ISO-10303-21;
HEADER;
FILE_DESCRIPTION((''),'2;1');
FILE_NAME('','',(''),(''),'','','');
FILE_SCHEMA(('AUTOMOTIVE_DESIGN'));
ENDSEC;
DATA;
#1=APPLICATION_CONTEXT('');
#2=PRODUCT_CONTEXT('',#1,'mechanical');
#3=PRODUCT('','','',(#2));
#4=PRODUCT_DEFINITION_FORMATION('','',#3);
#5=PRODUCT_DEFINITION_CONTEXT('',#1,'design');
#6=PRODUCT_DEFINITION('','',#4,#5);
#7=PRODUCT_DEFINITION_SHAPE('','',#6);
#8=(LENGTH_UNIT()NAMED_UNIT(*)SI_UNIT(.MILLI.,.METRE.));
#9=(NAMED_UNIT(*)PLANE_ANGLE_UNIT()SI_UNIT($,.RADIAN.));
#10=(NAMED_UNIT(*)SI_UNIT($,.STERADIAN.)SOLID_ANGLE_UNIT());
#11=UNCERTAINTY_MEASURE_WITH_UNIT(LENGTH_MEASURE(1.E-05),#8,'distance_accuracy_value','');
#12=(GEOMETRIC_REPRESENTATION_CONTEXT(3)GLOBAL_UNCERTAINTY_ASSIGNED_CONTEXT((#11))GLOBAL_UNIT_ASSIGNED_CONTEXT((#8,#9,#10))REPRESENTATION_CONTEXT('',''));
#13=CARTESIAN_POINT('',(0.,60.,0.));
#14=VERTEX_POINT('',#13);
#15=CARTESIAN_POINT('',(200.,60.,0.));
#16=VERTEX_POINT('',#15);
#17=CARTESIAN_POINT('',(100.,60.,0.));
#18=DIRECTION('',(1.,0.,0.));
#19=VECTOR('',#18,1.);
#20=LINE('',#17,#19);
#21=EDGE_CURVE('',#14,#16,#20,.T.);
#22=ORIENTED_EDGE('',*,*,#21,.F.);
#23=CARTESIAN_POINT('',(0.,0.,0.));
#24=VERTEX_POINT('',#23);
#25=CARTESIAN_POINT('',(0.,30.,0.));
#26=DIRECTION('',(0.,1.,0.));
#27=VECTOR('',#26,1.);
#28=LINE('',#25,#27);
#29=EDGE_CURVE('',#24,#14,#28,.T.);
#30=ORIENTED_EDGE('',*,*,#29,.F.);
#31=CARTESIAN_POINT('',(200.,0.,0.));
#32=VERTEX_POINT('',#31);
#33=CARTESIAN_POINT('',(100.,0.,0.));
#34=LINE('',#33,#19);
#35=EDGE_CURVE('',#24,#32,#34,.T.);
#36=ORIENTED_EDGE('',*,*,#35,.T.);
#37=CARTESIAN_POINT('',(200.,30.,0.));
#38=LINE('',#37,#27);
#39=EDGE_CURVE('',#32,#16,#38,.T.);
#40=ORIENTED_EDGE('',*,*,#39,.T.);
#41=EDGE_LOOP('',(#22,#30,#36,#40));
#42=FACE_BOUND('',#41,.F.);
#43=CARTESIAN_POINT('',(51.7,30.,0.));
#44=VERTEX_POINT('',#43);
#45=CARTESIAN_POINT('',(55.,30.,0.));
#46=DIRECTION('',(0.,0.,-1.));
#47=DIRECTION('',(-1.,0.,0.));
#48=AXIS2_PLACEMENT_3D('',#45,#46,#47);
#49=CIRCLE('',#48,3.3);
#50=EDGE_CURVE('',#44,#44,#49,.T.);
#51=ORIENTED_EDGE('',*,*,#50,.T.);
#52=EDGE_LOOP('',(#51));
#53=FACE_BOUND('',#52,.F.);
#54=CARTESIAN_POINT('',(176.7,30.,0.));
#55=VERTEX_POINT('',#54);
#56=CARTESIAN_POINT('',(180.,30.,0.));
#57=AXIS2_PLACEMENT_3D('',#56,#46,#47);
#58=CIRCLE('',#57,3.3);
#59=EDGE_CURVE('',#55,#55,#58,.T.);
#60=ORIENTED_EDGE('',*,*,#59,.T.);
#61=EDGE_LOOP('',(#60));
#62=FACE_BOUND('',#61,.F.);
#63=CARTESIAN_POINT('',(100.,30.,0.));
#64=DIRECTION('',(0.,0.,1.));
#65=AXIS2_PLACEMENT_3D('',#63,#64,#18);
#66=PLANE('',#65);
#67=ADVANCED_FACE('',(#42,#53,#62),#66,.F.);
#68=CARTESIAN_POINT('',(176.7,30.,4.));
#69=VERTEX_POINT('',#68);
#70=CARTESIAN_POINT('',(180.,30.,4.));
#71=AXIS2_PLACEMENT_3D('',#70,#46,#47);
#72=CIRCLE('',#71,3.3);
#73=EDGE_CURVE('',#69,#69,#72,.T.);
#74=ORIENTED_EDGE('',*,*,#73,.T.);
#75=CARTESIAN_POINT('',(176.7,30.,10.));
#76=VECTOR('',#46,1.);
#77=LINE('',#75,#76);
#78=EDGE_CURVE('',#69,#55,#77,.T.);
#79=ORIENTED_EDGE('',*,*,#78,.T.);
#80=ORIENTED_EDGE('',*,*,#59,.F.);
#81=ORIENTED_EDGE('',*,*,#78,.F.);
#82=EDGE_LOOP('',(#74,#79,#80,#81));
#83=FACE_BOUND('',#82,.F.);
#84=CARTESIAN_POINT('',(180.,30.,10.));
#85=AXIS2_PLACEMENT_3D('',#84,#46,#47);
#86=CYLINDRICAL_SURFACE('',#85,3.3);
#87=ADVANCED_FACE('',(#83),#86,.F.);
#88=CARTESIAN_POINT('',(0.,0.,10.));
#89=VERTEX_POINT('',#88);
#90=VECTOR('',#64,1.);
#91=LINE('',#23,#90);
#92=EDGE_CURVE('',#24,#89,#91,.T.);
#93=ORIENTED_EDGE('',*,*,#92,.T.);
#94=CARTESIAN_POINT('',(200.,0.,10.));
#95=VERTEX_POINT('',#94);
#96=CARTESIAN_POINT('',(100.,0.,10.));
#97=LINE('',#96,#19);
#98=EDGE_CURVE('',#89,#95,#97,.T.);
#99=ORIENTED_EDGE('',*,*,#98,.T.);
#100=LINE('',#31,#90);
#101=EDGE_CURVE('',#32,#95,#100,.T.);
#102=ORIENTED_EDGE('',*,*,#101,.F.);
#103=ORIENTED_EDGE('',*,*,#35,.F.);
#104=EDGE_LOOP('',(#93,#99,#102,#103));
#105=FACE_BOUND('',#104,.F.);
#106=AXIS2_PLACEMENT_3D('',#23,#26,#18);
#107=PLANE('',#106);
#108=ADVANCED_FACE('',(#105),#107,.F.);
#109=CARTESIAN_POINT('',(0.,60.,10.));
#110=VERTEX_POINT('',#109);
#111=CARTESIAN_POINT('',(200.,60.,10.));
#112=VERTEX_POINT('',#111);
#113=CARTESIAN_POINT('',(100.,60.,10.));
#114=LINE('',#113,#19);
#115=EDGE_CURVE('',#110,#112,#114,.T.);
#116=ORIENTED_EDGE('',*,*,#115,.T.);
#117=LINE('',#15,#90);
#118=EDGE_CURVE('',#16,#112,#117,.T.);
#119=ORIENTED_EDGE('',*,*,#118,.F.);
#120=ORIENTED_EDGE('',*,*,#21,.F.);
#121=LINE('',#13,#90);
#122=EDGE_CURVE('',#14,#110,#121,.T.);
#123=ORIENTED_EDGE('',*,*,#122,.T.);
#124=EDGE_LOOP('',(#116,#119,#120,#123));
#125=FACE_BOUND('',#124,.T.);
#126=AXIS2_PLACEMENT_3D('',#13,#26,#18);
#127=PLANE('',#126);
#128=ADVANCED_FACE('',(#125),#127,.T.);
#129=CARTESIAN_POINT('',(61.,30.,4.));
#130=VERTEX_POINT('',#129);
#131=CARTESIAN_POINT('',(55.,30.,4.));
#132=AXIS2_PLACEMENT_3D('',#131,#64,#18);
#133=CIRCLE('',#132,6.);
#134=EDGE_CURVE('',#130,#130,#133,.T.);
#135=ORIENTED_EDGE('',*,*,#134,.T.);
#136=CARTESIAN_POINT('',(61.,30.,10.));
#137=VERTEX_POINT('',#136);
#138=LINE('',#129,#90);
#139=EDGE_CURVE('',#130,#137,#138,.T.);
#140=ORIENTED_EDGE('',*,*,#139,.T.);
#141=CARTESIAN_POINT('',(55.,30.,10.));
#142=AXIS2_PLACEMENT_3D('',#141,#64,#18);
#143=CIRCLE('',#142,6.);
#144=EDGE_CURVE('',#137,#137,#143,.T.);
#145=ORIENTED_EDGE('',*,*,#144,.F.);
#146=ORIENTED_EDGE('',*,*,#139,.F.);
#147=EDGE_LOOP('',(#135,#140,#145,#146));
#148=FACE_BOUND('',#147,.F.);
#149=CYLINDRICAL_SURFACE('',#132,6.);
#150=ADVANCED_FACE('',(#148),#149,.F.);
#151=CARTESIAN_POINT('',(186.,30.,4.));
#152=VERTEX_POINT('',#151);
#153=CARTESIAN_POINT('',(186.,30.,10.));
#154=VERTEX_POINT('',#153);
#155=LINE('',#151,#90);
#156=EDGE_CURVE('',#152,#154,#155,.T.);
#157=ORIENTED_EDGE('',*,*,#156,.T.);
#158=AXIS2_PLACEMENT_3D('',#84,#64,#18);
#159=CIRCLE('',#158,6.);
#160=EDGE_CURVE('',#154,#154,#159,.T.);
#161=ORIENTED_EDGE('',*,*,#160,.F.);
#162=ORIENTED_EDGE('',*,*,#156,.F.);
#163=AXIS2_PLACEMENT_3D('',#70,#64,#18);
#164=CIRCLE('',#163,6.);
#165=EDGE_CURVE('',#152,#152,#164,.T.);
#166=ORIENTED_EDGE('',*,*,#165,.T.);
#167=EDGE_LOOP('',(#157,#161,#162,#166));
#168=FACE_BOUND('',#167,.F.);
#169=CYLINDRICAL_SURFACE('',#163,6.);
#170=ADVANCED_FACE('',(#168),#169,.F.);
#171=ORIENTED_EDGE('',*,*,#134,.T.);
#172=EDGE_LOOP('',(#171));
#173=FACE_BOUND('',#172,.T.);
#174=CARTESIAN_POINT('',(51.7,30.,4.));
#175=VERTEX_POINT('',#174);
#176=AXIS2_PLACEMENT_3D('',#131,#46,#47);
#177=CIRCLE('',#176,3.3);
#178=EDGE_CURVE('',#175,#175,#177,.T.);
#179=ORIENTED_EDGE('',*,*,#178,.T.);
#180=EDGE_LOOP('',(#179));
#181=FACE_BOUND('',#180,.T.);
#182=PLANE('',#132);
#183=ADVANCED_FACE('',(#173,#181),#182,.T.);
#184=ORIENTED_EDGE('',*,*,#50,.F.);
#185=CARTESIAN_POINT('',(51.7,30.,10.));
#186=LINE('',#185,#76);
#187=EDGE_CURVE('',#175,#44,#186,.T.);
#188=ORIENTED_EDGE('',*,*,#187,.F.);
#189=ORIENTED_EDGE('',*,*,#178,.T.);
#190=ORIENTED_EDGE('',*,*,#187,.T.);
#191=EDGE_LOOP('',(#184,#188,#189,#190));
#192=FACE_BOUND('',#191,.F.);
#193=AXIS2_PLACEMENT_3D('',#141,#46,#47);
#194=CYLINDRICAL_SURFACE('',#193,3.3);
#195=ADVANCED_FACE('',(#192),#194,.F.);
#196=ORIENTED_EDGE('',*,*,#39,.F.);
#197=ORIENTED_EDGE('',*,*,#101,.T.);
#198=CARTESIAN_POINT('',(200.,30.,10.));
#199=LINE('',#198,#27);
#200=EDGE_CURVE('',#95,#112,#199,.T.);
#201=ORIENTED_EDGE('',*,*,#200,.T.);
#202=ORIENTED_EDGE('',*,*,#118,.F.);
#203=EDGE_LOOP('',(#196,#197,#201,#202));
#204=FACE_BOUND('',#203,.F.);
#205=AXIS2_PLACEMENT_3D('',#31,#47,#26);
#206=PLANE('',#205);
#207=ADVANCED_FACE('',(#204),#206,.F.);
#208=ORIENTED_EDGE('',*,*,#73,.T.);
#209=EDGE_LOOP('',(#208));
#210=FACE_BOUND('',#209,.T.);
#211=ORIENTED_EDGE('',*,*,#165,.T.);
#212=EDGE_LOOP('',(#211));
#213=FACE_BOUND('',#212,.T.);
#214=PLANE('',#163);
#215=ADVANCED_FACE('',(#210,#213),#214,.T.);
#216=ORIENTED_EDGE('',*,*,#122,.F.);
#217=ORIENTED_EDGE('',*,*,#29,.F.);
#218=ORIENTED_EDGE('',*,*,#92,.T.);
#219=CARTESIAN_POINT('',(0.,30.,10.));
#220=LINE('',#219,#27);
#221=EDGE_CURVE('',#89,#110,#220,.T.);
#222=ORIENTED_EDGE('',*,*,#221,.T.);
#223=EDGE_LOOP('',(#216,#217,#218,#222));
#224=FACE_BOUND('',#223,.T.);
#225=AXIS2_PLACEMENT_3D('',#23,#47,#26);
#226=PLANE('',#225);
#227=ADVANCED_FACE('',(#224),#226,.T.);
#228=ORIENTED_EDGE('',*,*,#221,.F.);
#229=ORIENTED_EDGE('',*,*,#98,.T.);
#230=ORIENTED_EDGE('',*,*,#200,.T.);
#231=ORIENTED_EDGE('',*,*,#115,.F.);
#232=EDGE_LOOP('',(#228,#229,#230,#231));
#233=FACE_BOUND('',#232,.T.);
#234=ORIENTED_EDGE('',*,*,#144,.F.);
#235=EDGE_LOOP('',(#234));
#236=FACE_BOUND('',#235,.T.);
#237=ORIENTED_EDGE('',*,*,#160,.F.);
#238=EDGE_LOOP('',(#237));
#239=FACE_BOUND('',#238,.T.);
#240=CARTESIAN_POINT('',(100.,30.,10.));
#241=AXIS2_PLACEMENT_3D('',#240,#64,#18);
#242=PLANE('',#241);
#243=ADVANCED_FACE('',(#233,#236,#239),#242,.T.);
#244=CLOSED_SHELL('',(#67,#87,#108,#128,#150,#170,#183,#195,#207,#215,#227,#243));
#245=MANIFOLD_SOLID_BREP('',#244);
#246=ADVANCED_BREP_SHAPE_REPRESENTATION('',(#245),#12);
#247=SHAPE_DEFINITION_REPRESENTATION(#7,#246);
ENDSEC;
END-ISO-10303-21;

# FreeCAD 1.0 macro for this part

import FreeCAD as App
import Part
import Sketcher
Q = App.Units.Quantity


def add_polygon(sketch, points):
    """Adds a closed chain of lines whose ends are joined by coincident constraints."""
    first, n = sketch.GeometryCount, len(points)
    for a, b in zip(points, points[1:] + points[:1]):
        sketch.addGeometry(Part.LineSegment(App.Vector(*a, 0), App.Vector(*b, 0)), False)
    for i in range(n):
        sketch.addConstraint(Sketcher.Constraint("Coincident", first + i, 2, first + (i + 1) % n, 1))

doc = App.newDocument("Part")
body = doc.addObject("PartDesign::Body", "Body")

# Sketch on XY plane
sketch1 = doc.addObject("Sketcher::SketchObject", "Sketch")
body.addObject(sketch1)
sketch1.AttachmentSupport = (doc.XY_Plane, [""])
sketch1.MapMode = "FlatFace"
add_polygon(sketch1, [(0, 60), (0, 0), (200, 0), (200, 60)])  # lines 0-3
sketch1.addConstraint([
    Sketcher.Constraint("Vertical", 0),
    Sketcher.Constraint("Horizontal", 1),
    Sketcher.Constraint("Vertical", 2),
    Sketcher.Constraint("Horizontal", 3),
    Sketcher.Constraint("Coincident", 0, 2, -1, 1),
    Sketcher.Constraint("DistanceX", 1, 1, 1, 2, Q("200 mm")),
    Sketcher.Constraint("DistanceY", 0, 2, 0, 1, Q("60 mm")),
])
pad1 = doc.addObject("PartDesign::Pad", "Pad")
body.addObject(pad1)
pad1.Profile = sketch1
pad1.Length = 10

# Sketch on XY plane
sketch2 = doc.addObject("Sketcher::SketchObject", "Sketch001")
body.addObject(sketch2)
sketch2.AttachmentSupport = (doc.XY_Plane, [""])
sketch2.MapMode = "FlatFace"
sketch2.AttachmentOffset = App.Placement(App.Vector(0, 0, 10), App.Rotation())
sketch2.addGeometry([
    Part.Circle(App.Vector(180, 30, 0), App.Vector(0, 0, 1), 3.3),
    Part.Circle(App.Vector(55, 30, 0), App.Vector(0, 0, 1), 3.3),
], False)
sketch2.addConstraint([
    Sketcher.Constraint("Equal", 0, 1),
    Sketcher.Constraint("Horizontal", 0, 3, 1, 3),
    Sketcher.Constraint("Diameter", 0, Q("6.6 mm")),
    Sketcher.Constraint("DistanceX", -1, 1, 0, 3, Q("180 mm")),
    Sketcher.Constraint("DistanceY", -1, 1, 0, 3, Q("30 mm")),
    Sketcher.Constraint("DistanceX", -1, 1, 1, 3, Q("55 mm")),
])
doc.recompute()
hole = doc.addObject("PartDesign::Hole", "Hole")
body.addObject(hole)
hole.Profile = sketch2
hole.ThreadType = "None"
hole.Diameter = 6.6
hole.DepthType = "ThroughAll"
hole.HoleCutType = "Counterbore"
hole.HoleCutDiameter = 12
hole.HoleCutDepth = 6

doc.recompute()
